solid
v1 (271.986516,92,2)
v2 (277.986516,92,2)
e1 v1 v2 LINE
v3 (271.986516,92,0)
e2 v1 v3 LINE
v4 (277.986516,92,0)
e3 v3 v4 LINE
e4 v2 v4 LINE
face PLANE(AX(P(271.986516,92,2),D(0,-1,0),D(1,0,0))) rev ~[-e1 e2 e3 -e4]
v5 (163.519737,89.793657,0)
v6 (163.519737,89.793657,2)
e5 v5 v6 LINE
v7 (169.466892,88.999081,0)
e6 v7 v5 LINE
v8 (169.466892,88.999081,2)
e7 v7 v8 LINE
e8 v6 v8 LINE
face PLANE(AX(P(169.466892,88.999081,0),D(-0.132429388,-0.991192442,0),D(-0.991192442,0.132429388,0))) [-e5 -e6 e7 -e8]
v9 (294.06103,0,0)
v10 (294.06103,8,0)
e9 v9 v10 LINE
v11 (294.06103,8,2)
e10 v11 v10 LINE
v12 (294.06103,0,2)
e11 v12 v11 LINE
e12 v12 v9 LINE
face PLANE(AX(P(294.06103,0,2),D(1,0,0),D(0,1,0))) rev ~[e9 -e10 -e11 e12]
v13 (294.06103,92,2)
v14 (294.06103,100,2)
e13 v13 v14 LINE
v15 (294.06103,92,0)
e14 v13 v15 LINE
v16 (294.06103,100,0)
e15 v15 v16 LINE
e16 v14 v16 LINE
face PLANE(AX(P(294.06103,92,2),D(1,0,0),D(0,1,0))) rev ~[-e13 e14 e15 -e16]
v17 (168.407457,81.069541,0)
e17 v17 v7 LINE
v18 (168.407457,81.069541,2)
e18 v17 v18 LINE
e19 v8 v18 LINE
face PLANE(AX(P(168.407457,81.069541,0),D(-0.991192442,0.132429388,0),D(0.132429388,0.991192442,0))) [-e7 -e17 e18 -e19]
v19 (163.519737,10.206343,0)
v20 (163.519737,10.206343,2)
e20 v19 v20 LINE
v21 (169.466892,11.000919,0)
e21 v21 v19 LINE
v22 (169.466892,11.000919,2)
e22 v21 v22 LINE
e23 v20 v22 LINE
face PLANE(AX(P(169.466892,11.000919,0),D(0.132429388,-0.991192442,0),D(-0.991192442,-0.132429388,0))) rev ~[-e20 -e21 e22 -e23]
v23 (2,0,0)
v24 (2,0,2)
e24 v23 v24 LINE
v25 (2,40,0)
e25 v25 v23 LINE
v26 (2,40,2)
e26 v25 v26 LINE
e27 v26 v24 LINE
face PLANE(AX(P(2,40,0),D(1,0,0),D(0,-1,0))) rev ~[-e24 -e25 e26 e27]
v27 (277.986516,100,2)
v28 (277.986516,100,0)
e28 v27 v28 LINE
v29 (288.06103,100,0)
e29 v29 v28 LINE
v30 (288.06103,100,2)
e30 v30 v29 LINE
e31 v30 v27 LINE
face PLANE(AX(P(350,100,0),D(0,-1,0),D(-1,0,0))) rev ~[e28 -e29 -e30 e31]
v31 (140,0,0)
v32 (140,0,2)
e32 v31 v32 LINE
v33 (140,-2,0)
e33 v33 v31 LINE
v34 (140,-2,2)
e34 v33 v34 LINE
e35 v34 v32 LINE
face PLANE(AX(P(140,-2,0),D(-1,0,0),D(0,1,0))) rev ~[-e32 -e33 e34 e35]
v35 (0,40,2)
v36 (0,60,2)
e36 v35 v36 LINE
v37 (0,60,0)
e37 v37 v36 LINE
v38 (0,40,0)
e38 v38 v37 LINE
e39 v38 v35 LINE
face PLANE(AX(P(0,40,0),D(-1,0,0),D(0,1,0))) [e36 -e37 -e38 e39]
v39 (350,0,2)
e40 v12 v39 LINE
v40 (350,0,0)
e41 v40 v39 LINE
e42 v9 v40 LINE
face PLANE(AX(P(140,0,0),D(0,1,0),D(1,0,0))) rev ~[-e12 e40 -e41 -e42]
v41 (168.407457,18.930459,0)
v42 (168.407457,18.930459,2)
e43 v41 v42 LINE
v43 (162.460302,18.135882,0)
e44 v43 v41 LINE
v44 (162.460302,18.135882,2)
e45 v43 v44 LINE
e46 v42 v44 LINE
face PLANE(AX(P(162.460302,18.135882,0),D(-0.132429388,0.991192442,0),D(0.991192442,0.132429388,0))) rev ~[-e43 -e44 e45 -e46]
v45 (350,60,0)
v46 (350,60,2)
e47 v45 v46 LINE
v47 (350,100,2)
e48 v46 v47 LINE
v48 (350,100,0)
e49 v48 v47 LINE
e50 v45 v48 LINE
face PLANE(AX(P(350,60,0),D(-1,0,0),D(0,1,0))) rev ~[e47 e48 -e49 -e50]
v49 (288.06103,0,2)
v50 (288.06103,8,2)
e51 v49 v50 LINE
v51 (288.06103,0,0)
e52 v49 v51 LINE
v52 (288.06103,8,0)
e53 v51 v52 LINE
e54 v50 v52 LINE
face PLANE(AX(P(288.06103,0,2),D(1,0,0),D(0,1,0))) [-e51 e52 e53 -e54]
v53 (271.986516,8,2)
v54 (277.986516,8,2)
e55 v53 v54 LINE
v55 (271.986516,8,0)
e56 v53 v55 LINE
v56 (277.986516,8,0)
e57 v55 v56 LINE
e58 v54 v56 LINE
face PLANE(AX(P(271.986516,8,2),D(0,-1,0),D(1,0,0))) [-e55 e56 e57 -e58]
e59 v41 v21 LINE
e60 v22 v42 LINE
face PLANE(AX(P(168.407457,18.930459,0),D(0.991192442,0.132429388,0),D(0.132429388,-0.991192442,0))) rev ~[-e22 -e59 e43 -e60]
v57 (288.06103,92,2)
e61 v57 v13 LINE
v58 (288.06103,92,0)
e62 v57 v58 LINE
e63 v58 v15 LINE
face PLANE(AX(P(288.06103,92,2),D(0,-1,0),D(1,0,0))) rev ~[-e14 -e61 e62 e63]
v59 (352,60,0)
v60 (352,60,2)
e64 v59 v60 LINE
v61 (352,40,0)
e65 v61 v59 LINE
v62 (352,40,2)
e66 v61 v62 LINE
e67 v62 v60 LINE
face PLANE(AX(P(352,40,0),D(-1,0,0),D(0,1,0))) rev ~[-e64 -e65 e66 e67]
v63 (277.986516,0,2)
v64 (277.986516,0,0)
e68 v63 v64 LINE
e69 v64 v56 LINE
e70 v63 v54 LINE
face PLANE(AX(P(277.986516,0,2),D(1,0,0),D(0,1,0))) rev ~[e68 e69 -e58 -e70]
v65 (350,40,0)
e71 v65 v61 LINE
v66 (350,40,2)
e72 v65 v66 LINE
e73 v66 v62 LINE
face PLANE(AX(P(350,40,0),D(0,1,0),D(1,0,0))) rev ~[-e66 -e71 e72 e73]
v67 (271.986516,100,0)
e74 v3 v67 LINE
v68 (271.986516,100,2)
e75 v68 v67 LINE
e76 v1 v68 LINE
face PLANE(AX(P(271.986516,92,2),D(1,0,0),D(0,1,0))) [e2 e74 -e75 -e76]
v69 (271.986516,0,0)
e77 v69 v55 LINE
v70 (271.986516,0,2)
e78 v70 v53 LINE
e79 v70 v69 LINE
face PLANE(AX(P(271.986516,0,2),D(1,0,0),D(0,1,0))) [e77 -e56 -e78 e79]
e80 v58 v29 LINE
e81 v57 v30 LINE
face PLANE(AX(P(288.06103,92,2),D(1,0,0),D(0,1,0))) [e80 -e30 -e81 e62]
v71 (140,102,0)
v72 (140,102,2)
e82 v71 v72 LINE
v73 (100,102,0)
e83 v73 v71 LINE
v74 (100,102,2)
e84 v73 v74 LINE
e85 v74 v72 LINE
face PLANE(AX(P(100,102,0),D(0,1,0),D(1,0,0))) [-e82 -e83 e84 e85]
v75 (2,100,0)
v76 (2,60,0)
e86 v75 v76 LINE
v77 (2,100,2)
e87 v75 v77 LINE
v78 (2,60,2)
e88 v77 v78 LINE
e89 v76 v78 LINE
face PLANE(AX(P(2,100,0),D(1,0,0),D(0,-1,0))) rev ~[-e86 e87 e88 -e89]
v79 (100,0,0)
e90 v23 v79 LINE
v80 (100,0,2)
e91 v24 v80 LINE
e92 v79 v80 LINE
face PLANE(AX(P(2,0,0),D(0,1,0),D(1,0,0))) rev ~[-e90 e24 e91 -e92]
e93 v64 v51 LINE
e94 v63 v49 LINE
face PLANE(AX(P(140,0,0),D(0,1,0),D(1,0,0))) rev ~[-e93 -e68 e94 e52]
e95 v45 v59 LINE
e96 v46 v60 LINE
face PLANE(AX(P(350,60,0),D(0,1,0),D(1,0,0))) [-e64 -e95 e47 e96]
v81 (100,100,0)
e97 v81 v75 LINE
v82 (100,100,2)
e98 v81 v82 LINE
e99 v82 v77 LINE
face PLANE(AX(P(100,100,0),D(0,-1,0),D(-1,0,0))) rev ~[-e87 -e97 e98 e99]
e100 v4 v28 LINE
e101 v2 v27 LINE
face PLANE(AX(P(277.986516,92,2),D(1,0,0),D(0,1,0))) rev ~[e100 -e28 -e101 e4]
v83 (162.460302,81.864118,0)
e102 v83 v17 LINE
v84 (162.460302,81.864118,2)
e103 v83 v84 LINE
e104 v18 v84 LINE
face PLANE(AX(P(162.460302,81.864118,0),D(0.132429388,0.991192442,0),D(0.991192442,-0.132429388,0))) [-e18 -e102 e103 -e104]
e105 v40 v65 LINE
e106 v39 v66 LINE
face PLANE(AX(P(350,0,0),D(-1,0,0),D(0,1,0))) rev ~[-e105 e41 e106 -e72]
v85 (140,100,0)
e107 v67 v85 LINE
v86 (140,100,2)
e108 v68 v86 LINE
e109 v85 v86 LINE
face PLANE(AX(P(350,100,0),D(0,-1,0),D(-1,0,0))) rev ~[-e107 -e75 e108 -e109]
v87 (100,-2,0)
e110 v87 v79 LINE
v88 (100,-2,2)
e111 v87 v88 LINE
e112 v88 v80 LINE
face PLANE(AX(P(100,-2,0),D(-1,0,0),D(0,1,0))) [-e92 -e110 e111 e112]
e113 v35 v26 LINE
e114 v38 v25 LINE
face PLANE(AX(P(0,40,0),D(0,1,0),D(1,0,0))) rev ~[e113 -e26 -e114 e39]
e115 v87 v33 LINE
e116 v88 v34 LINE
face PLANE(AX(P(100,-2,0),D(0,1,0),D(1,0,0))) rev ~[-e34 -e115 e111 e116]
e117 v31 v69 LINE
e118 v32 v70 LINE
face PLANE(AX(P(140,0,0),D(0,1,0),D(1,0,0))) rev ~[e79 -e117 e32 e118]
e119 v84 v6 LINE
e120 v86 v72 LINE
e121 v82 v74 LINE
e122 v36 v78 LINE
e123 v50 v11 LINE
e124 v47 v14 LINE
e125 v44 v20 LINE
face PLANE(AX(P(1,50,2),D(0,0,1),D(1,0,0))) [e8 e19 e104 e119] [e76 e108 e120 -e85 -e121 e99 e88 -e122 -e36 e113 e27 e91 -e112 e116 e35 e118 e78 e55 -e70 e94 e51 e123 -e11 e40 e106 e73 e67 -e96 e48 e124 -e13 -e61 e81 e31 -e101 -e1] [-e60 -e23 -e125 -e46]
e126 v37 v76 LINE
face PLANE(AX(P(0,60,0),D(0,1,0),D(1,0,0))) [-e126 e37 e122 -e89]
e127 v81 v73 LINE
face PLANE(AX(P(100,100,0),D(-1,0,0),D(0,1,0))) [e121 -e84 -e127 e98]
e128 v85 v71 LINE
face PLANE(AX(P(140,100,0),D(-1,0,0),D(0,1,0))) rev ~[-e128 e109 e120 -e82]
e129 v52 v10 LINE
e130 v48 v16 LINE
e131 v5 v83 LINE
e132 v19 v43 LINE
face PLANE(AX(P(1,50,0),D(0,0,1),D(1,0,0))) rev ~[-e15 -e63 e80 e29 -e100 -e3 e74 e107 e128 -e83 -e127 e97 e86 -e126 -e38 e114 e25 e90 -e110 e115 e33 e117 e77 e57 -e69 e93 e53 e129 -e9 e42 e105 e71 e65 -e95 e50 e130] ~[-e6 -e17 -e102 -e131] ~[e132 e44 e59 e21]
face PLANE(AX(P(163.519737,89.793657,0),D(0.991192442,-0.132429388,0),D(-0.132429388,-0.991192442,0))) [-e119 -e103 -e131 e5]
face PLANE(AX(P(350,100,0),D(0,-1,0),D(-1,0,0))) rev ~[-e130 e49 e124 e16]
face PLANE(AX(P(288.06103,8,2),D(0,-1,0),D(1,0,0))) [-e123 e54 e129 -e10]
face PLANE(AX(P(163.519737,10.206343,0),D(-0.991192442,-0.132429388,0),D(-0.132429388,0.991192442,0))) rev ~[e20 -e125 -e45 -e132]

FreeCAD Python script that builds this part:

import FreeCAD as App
import Part
import Sketcher
from FreeCAD import Vector
Q = App.Units.Quantity


def add_polygon(sketch, points):
    """Adds a closed chain of lines whose ends are joined by coincident constraints."""
    first, n = sketch.GeometryCount, len(points)
    for a, b in zip(points, points[1:] + points[:1]):
        sketch.addGeometry(Part.LineSegment(App.Vector(*a, 0), App.Vector(*b, 0)), False)
    for i in range(n):
        sketch.addConstraint(Sketcher.Constraint("Coincident", first + i, 2, first + (i + 1) % n, 1))

doc = App.newDocument("Part")
params = doc.addObject("Spreadsheet::Sheet", "Params")
for row, (alias, value) in enumerate([
    ("sketch1_width", "2 mm"),
    ("sketch1_width2", "98 mm"),
    ("sketch1_width3", "40 mm"),
    ("sketch1_width4", "210 mm"),
    ("sketch1_height", "20 mm"),
    ("pad1_length", "2 mm"),
    ("sketch2_length", "8 mm"),
    ("sketch2_length2", "6 mm"),
    ("pocket1_length", "10 mm"),
    ("sketch3_width", "6 mm"),
    ("sketch3_height", "8 mm"),
    ("pocket2_length", "2 mm"),
    ("sketch4_width", "6 mm"),
    ("sketch4_height", "8 mm"),
    ("pocket3_length", "2 mm"),
], start=1):
    params.set(f"A{row}", alias)
    params.set(f"B{row}", "=" + value)
    params.setAlias(f"B{row}", alias)

body = doc.addObject("PartDesign::Body", "Body")

# Sketch on XY plane
sketch1 = doc.addObject("Sketcher::SketchObject", "Sketch")
body.addObject(sketch1)
sketch1.AttachmentSupport = (doc.XY_Plane, [""])
sketch1.MapMode = "FlatFace"
add_polygon(sketch1, [(0, 60), (0, 40), (2, 40), (2, 0), (100, 0), (100, -2), (140, -2), (140, 0), (350, 0), (350, 40), (352, 40), (352, 60), (350, 60), (350, 100), (140, 100), (140, 102), (100, 102), (100, 100), (2, 100), (2, 60)])  # lines 0-19
sketch1.addConstraint([
    Sketcher.Constraint("Vertical", 0),
    Sketcher.Constraint("Horizontal", 1),
    Sketcher.Constraint("Vertical", 2),
    Sketcher.Constraint("Horizontal", 3),
    Sketcher.Constraint("Vertical", 4),
    Sketcher.Constraint("Horizontal", 5),
    Sketcher.Constraint("Vertical", 6),
    Sketcher.Constraint("Horizontal", 7),
    Sketcher.Constraint("Vertical", 8),
    Sketcher.Constraint("Horizontal", 9),
    Sketcher.Constraint("Vertical", 10),
    Sketcher.Constraint("Horizontal", 11),
    Sketcher.Constraint("Vertical", 12),
    Sketcher.Constraint("Horizontal", 13),
    Sketcher.Constraint("Vertical", 14),
    Sketcher.Constraint("Horizontal", 15),
    Sketcher.Constraint("Vertical", 16),
    Sketcher.Constraint("Horizontal", 17),
    Sketcher.Constraint("Vertical", 18),
    Sketcher.Constraint("Horizontal", 19),
    Sketcher.Constraint("PointOnObject", 0, 2, -2),
    Sketcher.Constraint("PointOnObject", 2, 2, -1),
    Sketcher.Constraint("PointOnObject", 6, 2, -1),
    Sketcher.Constraint("Horizontal", 1, 2, 8, 2),
    Sketcher.Constraint("Horizontal", 13, 2, 16, 2),
    Sketcher.Constraint("Horizontal", 11, 2, 18, 2),
    Sketcher.Constraint("Vertical", 8, 2, 11, 2),
    Sketcher.Constraint("Vertical", 6, 2, 13, 2),
    Sketcher.Constraint("Vertical", 4, 2, 15, 2),
    Sketcher.Constraint("Vertical", 2, 2, 17, 2),
    Sketcher.Constraint("Equal", 1, 9),
    Sketcher.Constraint("Equal", 15, 2),
    Sketcher.Constraint("Equal", 19, 4),
    Sketcher.Constraint("Equal", 8, 12),
    Sketcher.Constraint("Equal", 6, 14),
    Sketcher.Constraint("DistanceX", 1, 1, 1, 2, 2.0),
    Sketcher.Constraint("DistanceX", 3, 1, 3, 2, 98.0),
    Sketcher.Constraint("DistanceX", 5, 1, 5, 2, 40.0),
    Sketcher.Constraint("DistanceX", 7, 1, 7, 2, 210.0),
    Sketcher.Constraint("DistanceY", 0, 2, 0, 1, 20.0),
])
sketch1.setExpression("Constraints[55]", "Params.sketch1_width")
sketch1.setExpression("Constraints[56]", "Params.sketch1_width2")
sketch1.setExpression("Constraints[57]", "Params.sketch1_width3")
sketch1.setExpression("Constraints[58]", "Params.sketch1_width4")
sketch1.setExpression("Constraints[59]", "Params.sketch1_height")
pad1 = doc.addObject("PartDesign::Pad", "Pad")
body.addObject(pad1)
pad1.Profile = sketch1
pad1.setExpression("Length", "Params.pad1_length")

# Sketch on XY plane
sketch2 = doc.addObject("Sketcher::SketchObject", "Sketch001")
body.addObject(sketch2)
sketch2.AttachmentSupport = (doc.XY_Plane, [""])
sketch2.MapMode = "FlatFace"
add_polygon(sketch2, [(169, 89), (168, 81), (162, 82), (164, 90)])  # lines 0-3
add_polygon(sketch2, [(162, 18), (168, 19), (169, 11), (164, 10)])  # lines 4-7
sketch2.addConstraint([
    Sketcher.Constraint("Perpendicular", 0, 1),
    Sketcher.Constraint("Perpendicular", 1, 2),
    Sketcher.Constraint("Perpendicular", 2, 3),
    Sketcher.Constraint("Perpendicular", 4, 5),
    Sketcher.Constraint("Perpendicular", 5, 6),
    Sketcher.Constraint("Perpendicular", 6, 7),
    Sketcher.Constraint("Vertical", 0, 2, 4, 2),
    Sketcher.Constraint("Vertical", 3, 2, 5, 2),
    Sketcher.Constraint("Vertical", 2, 2, 6, 2),
    Sketcher.Constraint("Equal", 3, 4),
    Sketcher.Constraint("Distance", 0, 8.0),
    Sketcher.Constraint("Distance", 1, 6.0),
    Sketcher.Constraint("Angle", 0, Q("-97.61 deg")),
    Sketcher.Constraint("DistanceY", 4, 2, 2, 2, 70.863199),
    Sketcher.Constraint("DistanceY", -1, 1, 0, 2, 81.069541),
    Sketcher.Constraint("DistanceX", -1, 1, 3, 2, 169.466892),
])
sketch2.setExpression("Constraints[18]", "Params.sketch2_length")
sketch2.setExpression("Constraints[19]", "Params.sketch2_length2")
pocket1 = doc.addObject("PartDesign::Pocket", "Pocket")
body.addObject(pocket1)
pocket1.Profile = sketch2
pocket1.setExpression("Length", "Params.pocket1_length")
pocket1.Reversed = True

# Sketch on XY plane
sketch3 = doc.addObject("Sketcher::SketchObject", "Sketch002")
body.addObject(sketch3)
sketch3.AttachmentSupport = (doc.XY_Plane, [""])
sketch3.MapMode = "FlatFace"
sketch3.AttachmentOffset = App.Placement(Vector(0, 0, 2), App.Rotation())
add_polygon(sketch3, [(288, 100), (288, 92), (294, 92), (294, 100)])  # lines 0-3
add_polygon(sketch3, [(288, 8), (288, 0), (294, 0), (294, 8)])  # lines 4-7
sketch3.addConstraint([
    Sketcher.Constraint("Vertical", 0),
    Sketcher.Constraint("Horizontal", 1),
    Sketcher.Constraint("Vertical", 2),
    Sketcher.Constraint("Horizontal", 3),
    Sketcher.Constraint("Vertical", 4),
    Sketcher.Constraint("Horizontal", 5),
    Sketcher.Constraint("Vertical", 6),
    Sketcher.Constraint("Horizontal", 7),
    Sketcher.Constraint("PointOnObject", 4, 2, -1),
    Sketcher.Constraint("Vertical", 3, 2, 4, 2),
    Sketcher.Constraint("Vertical", 2, 2, 5, 2),
    Sketcher.Constraint("Equal", 2, 4),
    Sketcher.Constraint("DistanceX", 1, 1, 1, 2, 6.0),
    Sketcher.Constraint("DistanceY", 0, 2, 0, 1, 8.0),
    Sketcher.Constraint("DistanceY", -1, 1, 0, 2, 92.0),
    Sketcher.Constraint("DistanceX", -1, 1, 0, 2, 288.06103),
])
sketch3.setExpression("Constraints[20]", "Params.sketch3_width")
sketch3.setExpression("Constraints[21]", "Params.sketch3_height")
pocket2 = doc.addObject("PartDesign::Pocket", "Pocket001")
body.addObject(pocket2)
pocket2.Profile = sketch3
pocket2.setExpression("Length", "Params.pocket2_length")

# Sketch on XY plane
sketch4 = doc.addObject("Sketcher::SketchObject", "Sketch003")
body.addObject(sketch4)
sketch4.AttachmentSupport = (doc.XY_Plane, [""])
sketch4.MapMode = "FlatFace"
sketch4.AttachmentOffset = App.Placement(Vector(0, 0, 2), App.Rotation())
add_polygon(sketch4, [(272, 8), (272, 0), (278, 0), (278, 8)])  # lines 0-3
add_polygon(sketch4, [(272, 100), (272, 92), (278, 92), (278, 100)])  # lines 4-7
sketch4.addConstraint([
    Sketcher.Constraint("Vertical", 0),
    Sketcher.Constraint("Horizontal", 1),
    Sketcher.Constraint("Vertical", 2),
    Sketcher.Constraint("Horizontal", 3),
    Sketcher.Constraint("Vertical", 4),
    Sketcher.Constraint("Horizontal", 5),
    Sketcher.Constraint("Vertical", 6),
    Sketcher.Constraint("Horizontal", 7),
    Sketcher.Constraint("PointOnObject", 0, 2, -1),
    Sketcher.Constraint("Vertical", 3, 2, 4, 2),
    Sketcher.Constraint("Vertical", 2, 2, 5, 2),
    Sketcher.Constraint("Equal", 2, 4),
    Sketcher.Constraint("DistanceX", 1, 1, 1, 2, 6.0),
    Sketcher.Constraint("DistanceY", 0, 2, 0, 1, 8.0),
    Sketcher.Constraint("DistanceY", -1, 1, 4, 2, 92.0),
    Sketcher.Constraint("DistanceX", -1, 1, 0, 2, 271.986516),
])
sketch4.setExpression("Constraints[20]", "Params.sketch4_width")
sketch4.setExpression("Constraints[21]", "Params.sketch4_height")
pocket3 = doc.addObject("PartDesign::Pocket", "Pocket002")
body.addObject(pocket3)
pocket3.Profile = sketch4
pocket3.setExpression("Length", "Params.pocket3_length")

doc.recompute()
